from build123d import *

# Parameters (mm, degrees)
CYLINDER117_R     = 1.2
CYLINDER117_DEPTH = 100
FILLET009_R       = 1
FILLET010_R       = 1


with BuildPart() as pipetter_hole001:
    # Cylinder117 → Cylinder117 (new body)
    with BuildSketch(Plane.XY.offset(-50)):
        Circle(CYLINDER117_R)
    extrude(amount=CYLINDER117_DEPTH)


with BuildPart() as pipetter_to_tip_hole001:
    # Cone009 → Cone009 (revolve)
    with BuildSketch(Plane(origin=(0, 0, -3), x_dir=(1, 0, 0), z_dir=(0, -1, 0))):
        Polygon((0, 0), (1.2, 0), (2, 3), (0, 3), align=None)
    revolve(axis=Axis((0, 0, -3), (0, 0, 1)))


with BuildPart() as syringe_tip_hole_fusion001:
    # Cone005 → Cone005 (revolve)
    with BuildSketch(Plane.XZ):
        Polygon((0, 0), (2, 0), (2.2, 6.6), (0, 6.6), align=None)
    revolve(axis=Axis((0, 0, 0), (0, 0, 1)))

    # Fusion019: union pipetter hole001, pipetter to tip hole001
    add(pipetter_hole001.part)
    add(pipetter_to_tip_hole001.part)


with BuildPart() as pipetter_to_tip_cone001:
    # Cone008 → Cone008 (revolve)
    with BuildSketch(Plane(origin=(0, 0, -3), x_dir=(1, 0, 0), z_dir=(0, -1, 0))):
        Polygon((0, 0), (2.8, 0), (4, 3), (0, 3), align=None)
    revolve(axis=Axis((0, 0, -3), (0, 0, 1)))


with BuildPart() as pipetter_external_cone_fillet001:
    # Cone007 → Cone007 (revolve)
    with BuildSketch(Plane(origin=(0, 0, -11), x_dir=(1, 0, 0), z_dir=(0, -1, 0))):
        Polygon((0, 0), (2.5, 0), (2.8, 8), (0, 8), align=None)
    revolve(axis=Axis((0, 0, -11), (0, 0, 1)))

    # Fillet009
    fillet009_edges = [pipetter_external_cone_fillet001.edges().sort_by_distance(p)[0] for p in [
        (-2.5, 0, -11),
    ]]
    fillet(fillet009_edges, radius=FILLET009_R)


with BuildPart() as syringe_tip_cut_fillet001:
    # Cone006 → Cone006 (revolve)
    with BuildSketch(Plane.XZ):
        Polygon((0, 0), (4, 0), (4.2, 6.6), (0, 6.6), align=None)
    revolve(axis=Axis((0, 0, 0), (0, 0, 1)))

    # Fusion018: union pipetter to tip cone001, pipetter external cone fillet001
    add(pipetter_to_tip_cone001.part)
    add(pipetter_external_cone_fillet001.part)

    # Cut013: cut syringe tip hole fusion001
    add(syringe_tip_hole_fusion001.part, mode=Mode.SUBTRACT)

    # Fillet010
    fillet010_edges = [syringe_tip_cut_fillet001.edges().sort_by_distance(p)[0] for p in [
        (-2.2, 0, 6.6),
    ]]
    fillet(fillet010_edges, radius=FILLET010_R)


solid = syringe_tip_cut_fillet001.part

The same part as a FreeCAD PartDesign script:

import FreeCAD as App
import Part
import Sketcher


def edges_at(feature, points):
    """Names of the edges that pass closest to the given points."""
    edges = feature.Shape.Edges
    near = lambda p: min(range(len(edges)), key=lambda i: edges[i].distToShape(Part.Vertex(*p))[0])
    return sorted({f"Edge{near(p) + 1}" for p in points})

doc = App.newDocument("Part")
body = doc.addObject("PartDesign::Body", "Body")

# Sketch on XY plane
sketch1 = body.newObject("Sketcher::SketchObject", "Sketch")
sketch1.AttachmentSupport = (doc.getObject("XY_Plane"), [""])
sketch1.MapMode = "FlatFace"
sketch1.AttachmentOffset = App.Placement(App.Vector(0, 0, -50), App.Rotation())
sketch1.addGeometry(Part.Circle(App.Vector(0, 0, 0), App.Vector(0, 0, 1), 1.2), False)
sketch1.addConstraint(Sketcher.Constraint("Coincident", 0, 3, -1, 1))
sketch1.addConstraint(Sketcher.Constraint("Diameter", 0, 2.4))
pad1 = body.newObject("PartDesign::Pad", "Pad")
pad1.Profile = sketch1
pad1.Length = 100
body2 = doc.addObject("PartDesign::Body", "Body001")

# Sketch on XZ plane
sketch2 = body2.newObject("Sketcher::SketchObject", "Sketch001")
sketch2.AttachmentSupport = (doc.getObject("XZ_Plane001"), [""])
sketch2.MapMode = "FlatFace"
sketch2.addGeometry(Part.LineSegment(App.Vector(0, -3, 0), App.Vector(1.2, -3, 0)), False)
sketch2.addGeometry(Part.LineSegment(App.Vector(1.2, -3, 0), App.Vector(2, 0, 0)), False)
sketch2.addGeometry(Part.LineSegment(App.Vector(2, 0, 0), App.Vector(0, 0, 0)), False)
sketch2.addGeometry(Part.LineSegment(App.Vector(0, 0, 0), App.Vector(0, -3, 0)), False)
sketch2.addConstraint(Sketcher.Constraint("Coincident", 0, 2, 1, 1))
sketch2.addConstraint(Sketcher.Constraint("Coincident", 1, 2, 2, 1))
sketch2.addConstraint(Sketcher.Constraint("Coincident", 2, 2, 3, 1))
sketch2.addConstraint(Sketcher.Constraint("Coincident", 3, 2, 0, 1))
sketch2.addConstraint(Sketcher.Constraint("Horizontal", 0))
sketch2.addConstraint(Sketcher.Constraint("Horizontal", 2))
sketch2.addConstraint(Sketcher.Constraint("Vertical", 3))
sketch2.addConstraint(Sketcher.Constraint("Coincident", 2, 2, -1, 1))
sketch2.addConstraint(Sketcher.Constraint("DistanceX", 2, 2, 2, 1, 2.0))
sketch2.addConstraint(Sketcher.Constraint("DistanceY", 3, 2, 3, 1, 3.0))
sketch2.addConstraint(Sketcher.Constraint("DistanceX", 0, 1, 0, 2, 1.2))
revolution = body2.newObject("PartDesign::Revolution", "Revolution")
revolution.Profile = sketch2
revolution.ReferenceAxis = (sketch2, ["V_Axis"])
revolution.Angle = 360
body3 = doc.addObject("PartDesign::Body", "Body002")

# Sketch on XZ plane
sketch3 = body3.newObject("Sketcher::SketchObject", "Sketch002")
sketch3.AttachmentSupport = (doc.getObject("XZ_Plane002"), [""])
sketch3.MapMode = "FlatFace"
sketch3.addGeometry(Part.LineSegment(App.Vector(0, 0, 0), App.Vector(2, 0, 0)), False)
sketch3.addGeometry(Part.LineSegment(App.Vector(2, 0, 0), App.Vector(2.2, 6.6, 0)), False)
sketch3.addGeometry(Part.LineSegment(App.Vector(2.2, 6.6, 0), App.Vector(0, 6.6, 0)), False)
sketch3.addGeometry(Part.LineSegment(App.Vector(0, 6.6, 0), App.Vector(0, 0, 0)), False)
sketch3.addConstraint(Sketcher.Constraint("Coincident", 0, 2, 1, 1))
sketch3.addConstraint(Sketcher.Constraint("Coincident", 1, 2, 2, 1))
sketch3.addConstraint(Sketcher.Constraint("Coincident", 2, 2, 3, 1))
sketch3.addConstraint(Sketcher.Constraint("Coincident", 3, 2, 0, 1))
sketch3.addConstraint(Sketcher.Constraint("Horizontal", 0))
sketch3.addConstraint(Sketcher.Constraint("Horizontal", 2))
sketch3.addConstraint(Sketcher.Constraint("Vertical", 3))
sketch3.addConstraint(Sketcher.Constraint("Coincident", 3, 2, -1, 1))
sketch3.addConstraint(Sketcher.Constraint("DistanceX", 0, 1, 0, 2, 2.0))
sketch3.addConstraint(Sketcher.Constraint("DistanceX", 2, 2, 2, 1, 2.2))
sketch3.addConstraint(Sketcher.Constraint("DistanceY", 3, 2, 3, 1, 6.6))
revolution2 = body3.newObject("PartDesign::Revolution", "Revolution001")
revolution2.Profile = sketch3
revolution2.ReferenceAxis = (sketch3, ["V_Axis"])
revolution2.Angle = 360
doc.recompute()

boolean = body3.newObject("PartDesign::Boolean", "Boolean")
boolean.Type = "Fuse"
boolean.addObjects([body])
doc.recompute()

boolean2 = body3.newObject("PartDesign::Boolean", "Boolean001")
boolean2.Type = "Fuse"
boolean2.addObjects([body2])
body4 = doc.addObject("PartDesign::Body", "Body003")

# Sketch on XZ plane
sketch4 = body4.newObject("Sketcher::SketchObject", "Sketch003")
sketch4.AttachmentSupport = (doc.getObject("XZ_Plane003"), [""])
sketch4.MapMode = "FlatFace"
sketch4.addGeometry(Part.LineSegment(App.Vector(0, -3, 0), App.Vector(2.8, -3, 0)), False)
sketch4.addGeometry(Part.LineSegment(App.Vector(2.8, -3, 0), App.Vector(4, 0, 0)), False)
sketch4.addGeometry(Part.LineSegment(App.Vector(4, 0, 0), App.Vector(0, 0, 0)), False)
sketch4.addGeometry(Part.LineSegment(App.Vector(0, 0, 0), App.Vector(0, -3, 0)), False)
sketch4.addConstraint(Sketcher.Constraint("Coincident", 0, 2, 1, 1))
sketch4.addConstraint(Sketcher.Constraint("Coincident", 1, 2, 2, 1))
sketch4.addConstraint(Sketcher.Constraint("Coincident", 2, 2, 3, 1))
sketch4.addConstraint(Sketcher.Constraint("Coincident", 3, 2, 0, 1))
sketch4.addConstraint(Sketcher.Constraint("Horizontal", 0))
sketch4.addConstraint(Sketcher.Constraint("Horizontal", 2))
sketch4.addConstraint(Sketcher.Constraint("Vertical", 3))
sketch4.addConstraint(Sketcher.Constraint("Coincident", 2, 2, -1, 1))
sketch4.addConstraint(Sketcher.Constraint("DistanceX", 2, 2, 2, 1, 4.0))
sketch4.addConstraint(Sketcher.Constraint("DistanceY", 3, 2, 3, 1, 3.0))
sketch4.addConstraint(Sketcher.Constraint("DistanceX", 0, 1, 0, 2, 2.8))
revolution3 = body4.newObject("PartDesign::Revolution", "Revolution002")
revolution3.Profile = sketch4
revolution3.ReferenceAxis = (sketch4, ["V_Axis"])
revolution3.Angle = 360
body5 = doc.addObject("PartDesign::Body", "Body004")

# Sketch on XZ plane
sketch5 = body5.newObject("Sketcher::SketchObject", "Sketch004")
sketch5.AttachmentSupport = (doc.getObject("XZ_Plane004"), [""])
sketch5.MapMode = "FlatFace"
sketch5.addGeometry(Part.LineSegment(App.Vector(0, -11, 0), App.Vector(2.5, -11, 0)), False)
sketch5.addGeometry(Part.LineSegment(App.Vector(2.5, -11, 0), App.Vector(2.8, -3, 0)), False)
sketch5.addGeometry(Part.LineSegment(App.Vector(2.8, -3, 0), App.Vector(0, -3, 0)), False)
sketch5.addGeometry(Part.LineSegment(App.Vector(0, -3, 0), App.Vector(0, -11, 0)), False)
sketch5.addConstraint(Sketcher.Constraint("Coincident", 0, 2, 1, 1))
sketch5.addConstraint(Sketcher.Constraint("Coincident", 1, 2, 2, 1))
sketch5.addConstraint(Sketcher.Constraint("Coincident", 2, 2, 3, 1))
sketch5.addConstraint(Sketcher.Constraint("Coincident", 3, 2, 0, 1))
sketch5.addConstraint(Sketcher.Constraint("Horizontal", 0))
sketch5.addConstraint(Sketcher.Constraint("Horizontal", 2))
sketch5.addConstraint(Sketcher.Constraint("Vertical", 3))
sketch5.addConstraint(Sketcher.Constraint("PointOnObject", 2, 2, -2))
sketch5.addConstraint(Sketcher.Constraint("DistanceY", 3, 2, 3, 1, 8.0))
sketch5.addConstraint(Sketcher.Constraint("DistanceX", 0, 1, 0, 2, 2.5))
sketch5.addConstraint(Sketcher.Constraint("DistanceX", 2, 2, 2, 1, 2.8))
sketch5.addConstraint(Sketcher.Constraint("DistanceY", 0, 2, -1, 1, 11.0))
revolution4 = body5.newObject("PartDesign::Revolution", "Revolution003")
revolution4.Profile = sketch5
revolution4.ReferenceAxis = (sketch5, ["V_Axis"])
revolution4.Angle = 360
doc.recompute()

fillet = body5.newObject("PartDesign::Fillet", "Fillet")
fillet.Base = (revolution4, edges_at(revolution4, [(-2.5, 0, -11)]))
fillet.Radius = 1
body6 = doc.addObject("PartDesign::Body", "Body005")

# Sketch on XZ plane
sketch6 = body6.newObject("Sketcher::SketchObject", "Sketch005")
sketch6.AttachmentSupport = (doc.getObject("XZ_Plane005"), [""])
sketch6.MapMode = "FlatFace"
sketch6.addGeometry(Part.LineSegment(App.Vector(0, 0, 0), App.Vector(4, 0, 0)), False)
sketch6.addGeometry(Part.LineSegment(App.Vector(4, 0, 0), App.Vector(4.2, 6.6, 0)), False)
sketch6.addGeometry(Part.LineSegment(App.Vector(4.2, 6.6, 0), App.Vector(0, 6.6, 0)), False)
sketch6.addGeometry(Part.LineSegment(App.Vector(0, 6.6, 0), App.Vector(0, 0, 0)), False)
sketch6.addConstraint(Sketcher.Constraint("Coincident", 0, 2, 1, 1))
sketch6.addConstraint(Sketcher.Constraint("Coincident", 1, 2, 2, 1))
sketch6.addConstraint(Sketcher.Constraint("Coincident", 2, 2, 3, 1))
sketch6.addConstraint(Sketcher.Constraint("Coincident", 3, 2, 0, 1))
sketch6.addConstraint(Sketcher.Constraint("Horizontal", 0))
sketch6.addConstraint(Sketcher.Constraint("Horizontal", 2))
sketch6.addConstraint(Sketcher.Constraint("Vertical", 3))
sketch6.addConstraint(Sketcher.Constraint("Coincident", 3, 2, -1, 1))
sketch6.addConstraint(Sketcher.Constraint("DistanceX", 0, 1, 0, 2, 4.0))
sketch6.addConstraint(Sketcher.Constraint("DistanceX", 2, 2, 2, 1, 4.2))
sketch6.addConstraint(Sketcher.Constraint("DistanceY", 3, 2, 3, 1, 6.6))
revolution5 = body6.newObject("PartDesign::Revolution", "Revolution004")
revolution5.Profile = sketch6
revolution5.ReferenceAxis = (sketch6, ["V_Axis"])
revolution5.Angle = 360
doc.recompute()

boolean3 = body6.newObject("PartDesign::Boolean", "Boolean002")
boolean3.Type = "Fuse"
boolean3.addObjects([body4])
doc.recompute()

boolean4 = body6.newObject("PartDesign::Boolean", "Boolean003")
boolean4.Type = "Fuse"
boolean4.addObjects([body5])
doc.recompute()

boolean5 = body6.newObject("PartDesign::Boolean", "Boolean004")
boolean5.Type = "Cut"
boolean5.addObjects([body3])
doc.recompute()

fillet2 = body6.newObject("PartDesign::Fillet", "Fillet001")
fillet2.Base = (boolean5, edges_at(boolean5, [(-2.2, 0, 6.6)]))
fillet2.Radius = 1

doc.recompute()
